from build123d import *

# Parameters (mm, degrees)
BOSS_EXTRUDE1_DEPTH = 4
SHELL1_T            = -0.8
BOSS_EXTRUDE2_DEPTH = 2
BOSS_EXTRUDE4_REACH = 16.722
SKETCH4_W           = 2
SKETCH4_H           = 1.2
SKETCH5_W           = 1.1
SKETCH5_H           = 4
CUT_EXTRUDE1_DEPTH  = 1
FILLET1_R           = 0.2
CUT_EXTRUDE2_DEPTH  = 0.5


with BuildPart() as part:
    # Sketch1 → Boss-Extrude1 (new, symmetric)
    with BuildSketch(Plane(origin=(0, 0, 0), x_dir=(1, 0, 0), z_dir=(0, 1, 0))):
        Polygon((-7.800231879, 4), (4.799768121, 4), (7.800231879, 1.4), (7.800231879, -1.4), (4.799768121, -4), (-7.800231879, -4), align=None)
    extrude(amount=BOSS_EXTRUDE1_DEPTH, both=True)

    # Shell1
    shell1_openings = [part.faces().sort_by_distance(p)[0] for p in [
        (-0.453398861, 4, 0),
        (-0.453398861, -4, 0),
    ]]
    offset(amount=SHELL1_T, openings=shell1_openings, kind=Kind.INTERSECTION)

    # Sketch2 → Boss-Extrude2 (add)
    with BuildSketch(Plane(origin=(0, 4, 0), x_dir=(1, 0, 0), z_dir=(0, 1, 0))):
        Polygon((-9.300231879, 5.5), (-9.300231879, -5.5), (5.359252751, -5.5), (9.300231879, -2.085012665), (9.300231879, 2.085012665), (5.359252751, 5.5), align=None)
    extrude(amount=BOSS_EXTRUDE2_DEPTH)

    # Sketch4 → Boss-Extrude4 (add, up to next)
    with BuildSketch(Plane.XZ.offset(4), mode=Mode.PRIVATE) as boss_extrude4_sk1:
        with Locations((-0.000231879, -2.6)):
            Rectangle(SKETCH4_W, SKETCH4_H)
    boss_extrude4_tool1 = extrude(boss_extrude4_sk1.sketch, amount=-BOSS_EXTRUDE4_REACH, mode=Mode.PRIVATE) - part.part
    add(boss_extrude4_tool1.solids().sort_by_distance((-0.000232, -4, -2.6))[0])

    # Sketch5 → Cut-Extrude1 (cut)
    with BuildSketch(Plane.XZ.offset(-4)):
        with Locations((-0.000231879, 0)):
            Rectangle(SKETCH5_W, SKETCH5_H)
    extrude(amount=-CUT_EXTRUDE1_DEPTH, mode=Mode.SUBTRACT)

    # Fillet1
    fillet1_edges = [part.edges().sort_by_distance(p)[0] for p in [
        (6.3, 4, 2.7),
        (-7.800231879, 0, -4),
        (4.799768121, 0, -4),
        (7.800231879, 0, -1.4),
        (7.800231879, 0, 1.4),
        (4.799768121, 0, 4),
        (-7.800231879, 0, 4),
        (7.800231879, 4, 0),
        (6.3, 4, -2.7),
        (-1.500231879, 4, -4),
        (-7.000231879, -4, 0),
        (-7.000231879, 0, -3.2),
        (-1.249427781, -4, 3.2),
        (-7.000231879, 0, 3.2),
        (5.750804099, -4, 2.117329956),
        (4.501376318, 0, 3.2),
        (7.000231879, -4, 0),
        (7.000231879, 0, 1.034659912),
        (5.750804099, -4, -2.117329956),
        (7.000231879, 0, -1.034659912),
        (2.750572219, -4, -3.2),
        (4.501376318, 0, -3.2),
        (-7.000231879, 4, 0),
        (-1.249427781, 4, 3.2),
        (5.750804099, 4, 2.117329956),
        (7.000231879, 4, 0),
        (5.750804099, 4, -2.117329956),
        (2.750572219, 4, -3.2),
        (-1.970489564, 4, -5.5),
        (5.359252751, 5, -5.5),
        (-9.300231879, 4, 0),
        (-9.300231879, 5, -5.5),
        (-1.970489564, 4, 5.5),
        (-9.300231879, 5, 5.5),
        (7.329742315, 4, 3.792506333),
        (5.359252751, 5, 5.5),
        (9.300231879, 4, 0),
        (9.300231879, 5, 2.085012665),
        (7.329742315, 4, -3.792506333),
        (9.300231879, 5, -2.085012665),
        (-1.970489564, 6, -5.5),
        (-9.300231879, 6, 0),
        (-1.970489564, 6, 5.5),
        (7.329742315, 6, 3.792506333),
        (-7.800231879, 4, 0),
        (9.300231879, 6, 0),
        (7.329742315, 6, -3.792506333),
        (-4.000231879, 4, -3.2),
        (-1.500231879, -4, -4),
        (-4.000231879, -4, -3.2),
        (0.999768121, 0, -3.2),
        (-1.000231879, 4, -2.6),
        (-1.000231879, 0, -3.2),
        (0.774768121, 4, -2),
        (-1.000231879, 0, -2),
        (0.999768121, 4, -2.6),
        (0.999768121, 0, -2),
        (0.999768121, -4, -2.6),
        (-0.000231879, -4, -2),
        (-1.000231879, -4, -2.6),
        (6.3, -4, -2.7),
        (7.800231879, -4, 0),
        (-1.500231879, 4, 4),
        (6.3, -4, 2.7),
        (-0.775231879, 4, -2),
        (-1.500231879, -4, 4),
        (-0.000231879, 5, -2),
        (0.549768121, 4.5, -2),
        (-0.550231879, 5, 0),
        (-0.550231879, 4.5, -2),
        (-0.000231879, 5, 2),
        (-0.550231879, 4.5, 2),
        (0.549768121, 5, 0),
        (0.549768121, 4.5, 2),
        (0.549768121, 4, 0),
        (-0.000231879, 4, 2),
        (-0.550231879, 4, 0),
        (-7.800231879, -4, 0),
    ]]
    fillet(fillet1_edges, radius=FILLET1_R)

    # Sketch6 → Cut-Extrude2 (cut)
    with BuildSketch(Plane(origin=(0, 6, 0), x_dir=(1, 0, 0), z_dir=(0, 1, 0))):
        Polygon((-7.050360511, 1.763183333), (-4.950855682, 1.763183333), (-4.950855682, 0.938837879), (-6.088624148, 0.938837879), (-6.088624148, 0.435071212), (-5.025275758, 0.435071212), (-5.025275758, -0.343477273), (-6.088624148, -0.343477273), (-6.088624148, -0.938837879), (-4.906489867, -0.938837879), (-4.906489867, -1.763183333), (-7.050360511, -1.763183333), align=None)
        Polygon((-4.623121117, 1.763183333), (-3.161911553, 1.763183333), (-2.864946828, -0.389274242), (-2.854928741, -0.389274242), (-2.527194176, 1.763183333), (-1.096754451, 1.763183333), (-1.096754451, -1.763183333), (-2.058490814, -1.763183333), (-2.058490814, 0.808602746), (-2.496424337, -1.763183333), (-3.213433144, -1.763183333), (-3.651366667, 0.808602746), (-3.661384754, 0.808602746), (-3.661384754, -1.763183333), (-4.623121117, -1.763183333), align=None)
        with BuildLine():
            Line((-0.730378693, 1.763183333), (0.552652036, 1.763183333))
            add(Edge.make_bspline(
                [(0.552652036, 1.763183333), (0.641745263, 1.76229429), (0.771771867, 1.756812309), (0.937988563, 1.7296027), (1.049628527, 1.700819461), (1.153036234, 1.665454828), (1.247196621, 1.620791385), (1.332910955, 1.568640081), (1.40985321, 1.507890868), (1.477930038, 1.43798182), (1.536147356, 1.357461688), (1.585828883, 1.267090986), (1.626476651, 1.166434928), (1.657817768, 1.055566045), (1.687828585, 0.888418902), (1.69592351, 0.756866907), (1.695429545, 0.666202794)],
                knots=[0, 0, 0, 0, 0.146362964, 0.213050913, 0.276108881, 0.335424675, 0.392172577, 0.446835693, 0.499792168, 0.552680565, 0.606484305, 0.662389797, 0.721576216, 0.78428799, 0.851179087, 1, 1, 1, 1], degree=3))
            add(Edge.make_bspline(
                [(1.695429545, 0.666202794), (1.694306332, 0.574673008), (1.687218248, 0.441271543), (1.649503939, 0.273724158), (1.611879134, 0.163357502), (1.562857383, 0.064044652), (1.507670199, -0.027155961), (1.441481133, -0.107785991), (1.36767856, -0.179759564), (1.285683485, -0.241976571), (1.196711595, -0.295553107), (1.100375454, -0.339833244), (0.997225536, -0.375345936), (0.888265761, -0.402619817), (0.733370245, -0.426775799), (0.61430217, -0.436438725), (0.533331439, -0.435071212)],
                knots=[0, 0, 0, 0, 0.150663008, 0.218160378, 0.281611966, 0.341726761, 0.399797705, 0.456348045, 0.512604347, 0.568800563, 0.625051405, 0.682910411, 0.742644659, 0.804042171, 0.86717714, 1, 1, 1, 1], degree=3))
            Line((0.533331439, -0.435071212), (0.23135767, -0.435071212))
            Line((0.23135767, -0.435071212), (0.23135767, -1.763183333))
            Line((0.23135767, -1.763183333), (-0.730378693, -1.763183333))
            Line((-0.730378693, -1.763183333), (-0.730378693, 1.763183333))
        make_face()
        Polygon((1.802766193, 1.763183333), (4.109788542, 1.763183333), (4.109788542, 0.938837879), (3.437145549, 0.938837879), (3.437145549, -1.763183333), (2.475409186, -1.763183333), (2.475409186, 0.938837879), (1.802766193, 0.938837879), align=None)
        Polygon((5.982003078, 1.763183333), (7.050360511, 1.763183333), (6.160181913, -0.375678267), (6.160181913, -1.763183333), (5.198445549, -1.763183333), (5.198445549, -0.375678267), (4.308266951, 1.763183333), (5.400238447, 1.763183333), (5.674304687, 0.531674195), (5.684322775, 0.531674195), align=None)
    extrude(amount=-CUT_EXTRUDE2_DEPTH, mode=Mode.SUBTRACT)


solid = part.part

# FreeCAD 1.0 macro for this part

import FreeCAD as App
import Part
import Sketcher
Q = App.Units.Quantity


def faces_at(feature, points):
    """Names of the faces that lie closest to the given points."""
    faces = feature.Shape.Faces
    near = lambda p: min(range(len(faces)), key=lambda i: faces[i].distToShape(Part.Vertex(*p))[0])
    return sorted({f"Face{near(p) + 1}" for p in points})

doc = App.newDocument("Part")
params = doc.addObject("Spreadsheet::Sheet", "Params")
for row, (alias, value) in enumerate([
    ("sketch1_height", "8 mm"),
    ("sketch1_width", "12.6 mm"),
    ("sketch1_height2", "2.8 mm"),
    ("pad1_length", "8 mm"),
    ("thickness_wall", "0.8 mm"),
    ("sketch2_height", "11 mm"),
    ("pad2_length", "2 mm"),
    ("sketch3_width", "2 mm"),
    ("sketch3_height", "1.2 mm"),
    ("sketch4_height", "4 mm"),
    ("sketch4_width", "1.1 mm"),
    ("pocket1_length", "1 mm"),
    ("fillet_radius", "0.2 mm"),
    ("pocket2_length", "0.5 mm"),
], start=1):
    params.set(f"A{row}", alias)
    params.set(f"B{row}", "=" + value)
    params.setAlias(f"B{row}", alias)

body = doc.addObject("PartDesign::Body", "Body")

# Sketch on XZ plane
sketch1 = doc.addObject("Sketcher::SketchObject", "Sketch")
body.addObject(sketch1)
sketch1.AttachmentSupport = (doc.XZ_Plane, [""])
sketch1.MapMode = "FlatFace"
sketch1.addGeometry(Part.LineSegment(App.Vector(4.8, -4, 0), App.Vector(-7.8, -4, 0)), False)
sketch1.addGeometry(Part.LineSegment(App.Vector(-7.8, -4, 0), App.Vector(-7.8, 4, 0)), False)
sketch1.addGeometry(Part.LineSegment(App.Vector(-7.8, 4, 0), App.Vector(4.8, 4, 0)), False)
sketch1.addGeometry(Part.LineSegment(App.Vector(4.8, 4, 0), App.Vector(7.8, 1.4, 0)), False)
sketch1.addGeometry(Part.LineSegment(App.Vector(7.8, 1.4, 0), App.Vector(7.8, -1.4, 0)), False)
sketch1.addGeometry(Part.LineSegment(App.Vector(7.8, -1.4, 0), App.Vector(4.8, -4, 0)), False)
sketch1.addConstraint(Sketcher.Constraint("Coincident", 0, 2, 1, 1))
sketch1.addConstraint(Sketcher.Constraint("Coincident", 1, 2, 2, 1))
sketch1.addConstraint(Sketcher.Constraint("Coincident", 2, 2, 3, 1))
sketch1.addConstraint(Sketcher.Constraint("Coincident", 3, 2, 4, 1))
sketch1.addConstraint(Sketcher.Constraint("Coincident", 4, 2, 5, 1))
sketch1.addConstraint(Sketcher.Constraint("Coincident", 5, 2, 0, 1))
sketch1.addConstraint(Sketcher.Constraint("Horizontal", 0))
sketch1.addConstraint(Sketcher.Constraint("Vertical", 1))
sketch1.addConstraint(Sketcher.Constraint("Horizontal", 2))
sketch1.addConstraint(Sketcher.Constraint("Vertical", 4))
sketch1.addConstraint(Sketcher.Constraint("Symmetric", 2, 2, 5, 2, -1))
sketch1.addConstraint(Sketcher.Constraint("Equal", 3, 5))
sketch1.addConstraint(Sketcher.Constraint("DistanceY", 1, 1, 1, 2, Q("8 mm")))
sketch1.addConstraint(Sketcher.Constraint("DistanceX", 0, 2, 0, 1, Q("12.6 mm")))
sketch1.addConstraint(Sketcher.Constraint("DistanceY", 4, 2, 4, 1, Q("2.8 mm")))
sketch1.addConstraint(Sketcher.Constraint("Angle", 3, Q("-40.91 deg")))
sketch1.addConstraint(Sketcher.Constraint("DistanceX", 0, 2, -1, 1, Q("7.800232 mm")))
sketch1.setExpression("Constraints[12]", "Params.sketch1_height")
sketch1.setExpression("Constraints[13]", "Params.sketch1_width")
sketch1.setExpression("Constraints[14]", "Params.sketch1_height2")
pad1 = doc.addObject("PartDesign::Pad", "Pad")
body.addObject(pad1)
pad1.Profile = sketch1
pad1.setExpression("Length", "Params.pad1_length")
pad1.Midplane = True
doc.recompute()

thickness = doc.addObject("PartDesign::Thickness", "Thickness")
body.addObject(thickness)
thickness.Base = (pad1, faces_at(pad1, [(0, 4, 0), (0, -4, 0)]))
thickness.setExpression("Value", "Params.thickness_wall")
thickness.Reversed = True
thickness.Join = "Intersection"

# Sketch on XZ plane
sketch2 = doc.addObject("Sketcher::SketchObject", "Sketch001")
body.addObject(sketch2)
sketch2.AttachmentSupport = (doc.XZ_Plane, [""])
sketch2.MapMode = "FlatFace"
sketch2.AttachmentOffset = App.Placement(App.Vector(0, 0, -4), App.Rotation())
sketch2.addGeometry(Part.LineSegment(App.Vector(-9.3, -5.5, 0), App.Vector(-9.3, 5.5, 0)), False)
sketch2.addGeometry(Part.LineSegment(App.Vector(-9.3, 5.5, 0), App.Vector(5.4, 5.5, 0)), False)
sketch2.addGeometry(Part.LineSegment(App.Vector(5.4, 5.5, 0), App.Vector(9.3, 2.1, 0)), False)
sketch2.addGeometry(Part.LineSegment(App.Vector(9.3, 2.1, 0), App.Vector(9.3, -2.1, 0)), False)
sketch2.addGeometry(Part.LineSegment(App.Vector(9.3, -2.1, 0), App.Vector(5.4, -5.5, 0)), False)
sketch2.addGeometry(Part.LineSegment(App.Vector(5.4, -5.5, 0), App.Vector(-9.3, -5.5, 0)), False)
sketch2.addConstraint(Sketcher.Constraint("Coincident", 0, 2, 1, 1))
sketch2.addConstraint(Sketcher.Constraint("Coincident", 1, 2, 2, 1))
sketch2.addConstraint(Sketcher.Constraint("Coincident", 2, 2, 3, 1))
sketch2.addConstraint(Sketcher.Constraint("Coincident", 3, 2, 4, 1))
sketch2.addConstraint(Sketcher.Constraint("Coincident", 4, 2, 5, 1))
sketch2.addConstraint(Sketcher.Constraint("Coincident", 5, 2, 0, 1))
sketch2.addConstraint(Sketcher.Constraint("Vertical", 0))
sketch2.addConstraint(Sketcher.Constraint("Horizontal", 1))
sketch2.addConstraint(Sketcher.Constraint("Vertical", 3))
sketch2.addConstraint(Sketcher.Constraint("Horizontal", 5))
sketch2.addConstraint(Sketcher.Constraint("Symmetric", 1, 2, 4, 2, -1))
sketch2.addConstraint(Sketcher.Constraint("Equal", 2, 4))
sketch2.addConstraint(Sketcher.Constraint("DistanceY", 0, 1, 0, 2, Q("11 mm")))
sketch2.addConstraint(Sketcher.Constraint("Angle", 2, Q("-40.91 deg")))
sketch2.addConstraint(Sketcher.Constraint("DistanceX", 1, 1, 1, 2, Q("14.659485 mm")))
sketch2.addConstraint(Sketcher.Constraint("DistanceY", 3, 2, 3, 1, Q("4.170025 mm")))
sketch2.addConstraint(Sketcher.Constraint("DistanceX", 0, 2, -1, 1, Q("9.300232 mm")))
sketch2.setExpression("Constraints[12]", "Params.sketch2_height")
pad2 = doc.addObject("PartDesign::Pad", "Pad001")
body.addObject(pad2)
pad2.Profile = sketch2
pad2.setExpression("Length", "Params.pad2_length")
pad2.Reversed = True

# Sketch on XZ plane
sketch3 = doc.addObject("Sketcher::SketchObject", "Sketch002")
body.addObject(sketch3)
sketch3.AttachmentSupport = (doc.XZ_Plane, [""])
sketch3.MapMode = "FlatFace"
sketch3.AttachmentOffset = App.Placement(App.Vector(0, 0, 4), App.Rotation())
sketch3.addGeometry(Part.LineSegment(App.Vector(-1, -2, 0), App.Vector(-1, -3.2, 0)), False)
sketch3.addGeometry(Part.LineSegment(App.Vector(-1, -3.2, 0), App.Vector(1, -3.2, 0)), False)
sketch3.addGeometry(Part.LineSegment(App.Vector(1, -3.2, 0), App.Vector(1, -2, 0)), False)
sketch3.addGeometry(Part.LineSegment(App.Vector(1, -2, 0), App.Vector(-1, -2, 0)), False)
sketch3.addConstraint(Sketcher.Constraint("Coincident", 0, 2, 1, 1))
sketch3.addConstraint(Sketcher.Constraint("Coincident", 1, 2, 2, 1))
sketch3.addConstraint(Sketcher.Constraint("Coincident", 2, 2, 3, 1))
sketch3.addConstraint(Sketcher.Constraint("Coincident", 3, 2, 0, 1))
sketch3.addConstraint(Sketcher.Constraint("Vertical", 0))
sketch3.addConstraint(Sketcher.Constraint("Horizontal", 1))
sketch3.addConstraint(Sketcher.Constraint("Vertical", 2))
sketch3.addConstraint(Sketcher.Constraint("Horizontal", 3))
sketch3.addConstraint(Sketcher.Constraint("DistanceX", 1, 1, 1, 2, Q("2 mm")))
sketch3.addConstraint(Sketcher.Constraint("DistanceY", 0, 2, 0, 1, Q("1.2 mm")))
sketch3.addConstraint(Sketcher.Constraint("DistanceY", 2, 2, -1, 1, Q("2 mm")))
sketch3.addConstraint(Sketcher.Constraint("DistanceX", 0, 2, -1, 1, Q("1.000232 mm")))
sketch3.setExpression("Constraints[8]", "Params.sketch3_width")
sketch3.setExpression("Constraints[9]", "Params.sketch3_height")
pad3 = doc.addObject("PartDesign::Pad", "Pad002")
body.addObject(pad3)
pad3.Profile = sketch3
pad3.Type = "UpToFirst"
pad3.Reversed = True

# Sketch on XZ plane
sketch4 = doc.addObject("Sketcher::SketchObject", "Sketch003")
body.addObject(sketch4)
sketch4.AttachmentSupport = (doc.XZ_Plane, [""])
sketch4.MapMode = "FlatFace"
sketch4.AttachmentOffset = App.Placement(App.Vector(0, 0, -4), App.Rotation())
sketch4.addGeometry(Part.LineSegment(App.Vector(-0.6, 2, 0), App.Vector(-0.6, -2, 0)), False)
sketch4.addGeometry(Part.LineSegment(App.Vector(-0.6, -2, 0), App.Vector(0.5, -2, 0)), False)
sketch4.addGeometry(Part.LineSegment(App.Vector(0.5, -2, 0), App.Vector(0.5, 2, 0)), False)
sketch4.addGeometry(Part.LineSegment(App.Vector(0.5, 2, 0), App.Vector(-0.6, 2, 0)), False)
sketch4.addConstraint(Sketcher.Constraint("Coincident", 0, 2, 1, 1))
sketch4.addConstraint(Sketcher.Constraint("Coincident", 1, 2, 2, 1))
sketch4.addConstraint(Sketcher.Constraint("Coincident", 2, 2, 3, 1))
sketch4.addConstraint(Sketcher.Constraint("Coincident", 3, 2, 0, 1))
sketch4.addConstraint(Sketcher.Constraint("Vertical", 0))
sketch4.addConstraint(Sketcher.Constraint("Horizontal", 1))
sketch4.addConstraint(Sketcher.Constraint("Vertical", 2))
sketch4.addConstraint(Sketcher.Constraint("Horizontal", 3))
sketch4.addConstraint(Sketcher.Constraint("DistanceY", 0, 2, 0, 1, Q("4 mm")))
sketch4.addConstraint(Sketcher.Constraint("DistanceX", 1, 1, 1, 2, Q("1.1 mm")))
sketch4.addConstraint(Sketcher.Constraint("DistanceY", 0, 2, -1, 1, Q("2 mm")))
sketch4.addConstraint(Sketcher.Constraint("DistanceX", 0, 2, -1, 1, Q("0.550232 mm")))
sketch4.setExpression("Constraints[8]", "Params.sketch4_height")
sketch4.setExpression("Constraints[9]", "Params.sketch4_width")
pocket1 = doc.addObject("PartDesign::Pocket", "Pocket")
body.addObject(pocket1)
pocket1.Profile = sketch4
pocket1.setExpression("Length", "Params.pocket1_length")
doc.recompute()

fillet = doc.addObject("PartDesign::Fillet", "Fillet")
body.addObject(fillet)
fillet.Base = (pocket1, ["Edge1"])
fillet.UseAllEdges = True
fillet.setExpression("Radius", "Params.fillet_radius")

# Sketch on XZ plane
sketch5 = doc.addObject("Sketcher::SketchObject", "Sketch004")
body.addObject(sketch5)
sketch5.AttachmentSupport = (doc.XZ_Plane, [""])
sketch5.MapMode = "FlatFace"
sketch5.AttachmentOffset = App.Placement(App.Vector(0, 0, -6), App.Rotation())
sketch5.addGeometry(Part.LineSegment(App.Vector(-4.950856, -1.763183, 0), App.Vector(-7.050361, -1.763183, 0)), False)
sketch5.addGeometry(Part.LineSegment(App.Vector(-7.050361, -1.763183, 0), App.Vector(-7.050361, 1.763183, 0)), False)
sketch5.addGeometry(Part.LineSegment(App.Vector(-7.050361, 1.763183, 0), App.Vector(-4.90649, 1.763183, 0)), False)
sketch5.addGeometry(Part.LineSegment(App.Vector(-4.90649, 1.763183, 0), App.Vector(-4.90649, 0.938838, 0)), False)
sketch5.addGeometry(Part.LineSegment(App.Vector(-4.90649, 0.938838, 0), App.Vector(-6.088624, 0.938838, 0)), False)
sketch5.addGeometry(Part.LineSegment(App.Vector(-6.088624, 0.938838, 0), App.Vector(-6.088624, 0.343477, 0)), False)
sketch5.addGeometry(Part.LineSegment(App.Vector(-6.088624, 0.343477, 0), App.Vector(-5.025276, 0.343477, 0)), False)
sketch5.addGeometry(Part.LineSegment(App.Vector(-5.025276, 0.343477, 0), App.Vector(-5.025276, -0.435071, 0)), False)
sketch5.addGeometry(Part.LineSegment(App.Vector(-5.025276, -0.435071, 0), App.Vector(-6.088624, -0.435071, 0)), False)
sketch5.addGeometry(Part.LineSegment(App.Vector(-6.088624, -0.435071, 0), App.Vector(-6.088624, -0.938838, 0)), False)
sketch5.addGeometry(Part.LineSegment(App.Vector(-6.088624, -0.938838, 0), App.Vector(-4.950856, -0.938838, 0)), False)
sketch5.addGeometry(Part.LineSegment(App.Vector(-4.950856, -0.938838, 0), App.Vector(-4.950856, -1.763183, 0)), False)
sketch5.addGeometry(Part.LineSegment(App.Vector(-3.161912, -1.763183, 0), App.Vector(-4.623121, -1.763183, 0)), False)
sketch5.addGeometry(Part.LineSegment(App.Vector(-4.623121, -1.763183, 0), App.Vector(-4.623121, 1.763183, 0)), False)
sketch5.addGeometry(Part.LineSegment(App.Vector(-4.623121, 1.763183, 0), App.Vector(-3.661385, 1.763183, 0)), False)
sketch5.addGeometry(Part.LineSegment(App.Vector(-3.661385, 1.763183, 0), App.Vector(-3.661385, -0.808603, 0)), False)
sketch5.addGeometry(Part.LineSegment(App.Vector(-3.661385, -0.808603, 0), App.Vector(-3.651367, -0.808603, 0)), False)
sketch5.addGeometry(Part.LineSegment(App.Vector(-3.651367, -0.808603, 0), App.Vector(-3.213433, 1.763183, 0)), False)
sketch5.addGeometry(Part.LineSegment(App.Vector(-3.213433, 1.763183, 0), App.Vector(-2.496424, 1.763183, 0)), False)
sketch5.addGeometry(Part.LineSegment(App.Vector(-2.496424, 1.763183, 0), App.Vector(-2.058491, -0.808603, 0)), False)
sketch5.addGeometry(Part.LineSegment(App.Vector(-2.058491, -0.808603, 0), App.Vector(-2.058491, 1.763183, 0)), False)
sketch5.addGeometry(Part.LineSegment(App.Vector(-2.058491, 1.763183, 0), App.Vector(-1.096754, 1.763183, 0)), False)
sketch5.addGeometry(Part.LineSegment(App.Vector(-1.096754, 1.763183, 0), App.Vector(-1.096754, -1.763183, 0)), False)
sketch5.addGeometry(Part.LineSegment(App.Vector(-1.096754, -1.763183, 0), App.Vector(-2.527194, -1.763183, 0)), False)
sketch5.addGeometry(Part.LineSegment(App.Vector(-2.527194, -1.763183, 0), App.Vector(-2.854929, 0.389274, 0)), False)
sketch5.addGeometry(Part.LineSegment(App.Vector(-2.854929, 0.389274, 0), App.Vector(-2.864947, 0.389274, 0)), False)
sketch5.addGeometry(Part.LineSegment(App.Vector(-2.864947, 0.389274, 0), App.Vector(-3.161912, -1.763183, 0)), False)
sketch5.addGeometry(Part.LineSegment(App.Vector(0.552652, -1.763183, 0), App.Vector(-0.730379, -1.763183, 0)), False)
sketch5.addGeometry(Part.LineSegment(App.Vector(-0.730379, -1.763183, 0), App.Vector(-0.730379, 1.763183, 0)), False)
sketch5.addGeometry(Part.LineSegment(App.Vector(-0.730379, 1.763183, 0), App.Vector(0.231358, 1.763183, 0)), False)
sketch5.addGeometry(Part.LineSegment(App.Vector(0.231358, 1.763183, 0), App.Vector(0.231358, 0.435071, 0)), False)
sketch5.addGeometry(Part.LineSegment(App.Vector(0.231358, 0.435071, 0), App.Vector(0.533331, 0.435071, 0)), False)
sketch5.addGeometry(Part.BSplineCurve([App.Vector(1.69543, -0.666203, 0), App.Vector(1.694306, -0.574673, 0), App.Vector(1.687218, -0.441272, 0), App.Vector(1.649504, -0.273724, 0), App.Vector(1.611879, -0.163358, 0), App.Vector(1.562857, -0.064045, 0), App.Vector(1.50767, 0.027156, 0), App.Vector(1.441481, 0.107786, 0), App.Vector(1.367679, 0.17976, 0), App.Vector(1.285683, 0.241977, 0), App.Vector(1.196712, 0.295553, 0), App.Vector(1.100375, 0.339833, 0), App.Vector(0.997226, 0.375346, 0), App.Vector(0.888266, 0.40262, 0), App.Vector(0.73337, 0.426776, 0), App.Vector(0.614302, 0.436439, 0), App.Vector(0.533331, 0.435071, 0)], [4, 1, 1, 1, 1, 1, 1, 1, 1, 1, 1, 1, 1, 1, 4], [0, 0.150663008, 0.218160378, 0.281611966, 0.341726761, 0.399797705, 0.456348045, 0.512604347, 0.568800563, 0.625051405, 0.682910411, 0.742644659, 0.804042171, 0.86717714, 1], False, 3, [1, 1, 1, 1, 1, 1, 1, 1, 1, 1, 1, 1, 1, 1, 1, 1, 1], False), False)
sketch5.addGeometry(Part.BSplineCurve([App.Vector(0.552652, -1.763183, 0), App.Vector(0.641745, -1.762294, 0), App.Vector(0.771772, -1.756812, 0), App.Vector(0.937989, -1.729603, 0), App.Vector(1.049629, -1.700819, 0), App.Vector(1.153036, -1.665455, 0), App.Vector(1.247197, -1.620791, 0), App.Vector(1.332911, -1.56864, 0), App.Vector(1.409853, -1.507891, 0), App.Vector(1.47793, -1.437982, 0), App.Vector(1.536147, -1.357462, 0), App.Vector(1.585829, -1.267091, 0), App.Vector(1.626477, -1.166435, 0), App.Vector(1.657818, -1.055566, 0), App.Vector(1.687829, -0.888419, 0), App.Vector(1.695924, -0.756867, 0), App.Vector(1.69543, -0.666203, 0)], [4, 1, 1, 1, 1, 1, 1, 1, 1, 1, 1, 1, 1, 1, 4], [0, 0.146362964, 0.213050913, 0.276108881, 0.335424675, 0.392172577, 0.446835693, 0.499792168, 0.552680565, 0.606484305, 0.662389797, 0.721576216, 0.78428799, 0.851179087, 1], False, 3, [1, 1, 1, 1, 1, 1, 1, 1, 1, 1, 1, 1, 1, 1, 1, 1, 1], False), False)
sketch5.addGeometry(Part.LineSegment(App.Vector(4.109789, -1.763183, 0), App.Vector(1.802766, -1.763183, 0)), False)
sketch5.addGeometry(Part.LineSegment(App.Vector(1.802766, -1.763183, 0), App.Vector(1.802766, -0.938838, 0)), False)
sketch5.addGeometry(Part.LineSegment(App.Vector(1.802766, -0.938838, 0), App.Vector(2.475409, -0.938838, 0)), False)
sketch5.addGeometry(Part.LineSegment(App.Vector(2.475409, -0.938838, 0), App.Vector(2.475409, 1.763183, 0)), False)
sketch5.addGeometry(Part.LineSegment(App.Vector(2.475409, 1.763183, 0), App.Vector(3.437146, 1.763183, 0)), False)
sketch5.addGeometry(Part.LineSegment(App.Vector(3.437146, 1.763183, 0), App.Vector(3.437146, -0.938838, 0)), False)
sketch5.addGeometry(Part.LineSegment(App.Vector(3.437146, -0.938838, 0), App.Vector(4.109789, -0.938838, 0)), False)
sketch5.addGeometry(Part.LineSegment(App.Vector(4.109789, -0.938838, 0), App.Vector(4.109789, -1.763183, 0)), False)
sketch5.addGeometry(Part.LineSegment(App.Vector(7.050361, -1.763183, 0), App.Vector(5.982003, -1.763183, 0)), False)
sketch5.addGeometry(Part.LineSegment(App.Vector(5.982003, -1.763183, 0), App.Vector(5.684323, -0.531674, 0)), False)
sketch5.addGeometry(Part.LineSegment(App.Vector(5.684323, -0.531674, 0), App.Vector(5.674305, -0.531674, 0)), False)
sketch5.addGeometry(Part.LineSegment(App.Vector(5.674305, -0.531674, 0), App.Vector(5.400238, -1.763183, 0)), False)
sketch5.addGeometry(Part.LineSegment(App.Vector(5.400238, -1.763183, 0), App.Vector(4.308267, -1.763183, 0)), False)
sketch5.addGeometry(Part.LineSegment(App.Vector(4.308267, -1.763183, 0), App.Vector(5.198446, 0.375678, 0)), False)
sketch5.addGeometry(Part.LineSegment(App.Vector(5.198446, 0.375678, 0), App.Vector(5.198446, 1.763183, 0)), False)
sketch5.addGeometry(Part.LineSegment(App.Vector(5.198446, 1.763183, 0), App.Vector(6.160182, 1.763183, 0)), False)
sketch5.addGeometry(Part.LineSegment(App.Vector(6.160182, 1.763183, 0), App.Vector(6.160182, 0.375678, 0)), False)
sketch5.addGeometry(Part.LineSegment(App.Vector(6.160182, 0.375678, 0), App.Vector(7.050361, -1.763183, 0)), False)
sketch5.addConstraint(Sketcher.Constraint("Block", 32))
sketch5.addConstraint(Sketcher.Constraint("Block", 33))
sketch5.addConstraint(Sketcher.Constraint("Coincident", 0, 2, 1, 1))
sketch5.addConstraint(Sketcher.Constraint("Coincident", 1, 2, 2, 1))
sketch5.addConstraint(Sketcher.Constraint("Coincident", 2, 2, 3, 1))
sketch5.addConstraint(Sketcher.Constraint("Coincident", 3, 2, 4, 1))
sketch5.addConstraint(Sketcher.Constraint("Coincident", 4, 2, 5, 1))
sketch5.addConstraint(Sketcher.Constraint("Coincident", 5, 2, 6, 1))
sketch5.addConstraint(Sketcher.Constraint("Coincident", 6, 2, 7, 1))
sketch5.addConstraint(Sketcher.Constraint("Coincident", 7, 2, 8, 1))
sketch5.addConstraint(Sketcher.Constraint("Coincident", 8, 2, 9, 1))
sketch5.addConstraint(Sketcher.Constraint("Coincident", 9, 2, 10, 1))
sketch5.addConstraint(Sketcher.Constraint("Coincident", 10, 2, 11, 1))
sketch5.addConstraint(Sketcher.Constraint("Coincident", 11, 2, 0, 1))
sketch5.addConstraint(Sketcher.Constraint("Coincident", 12, 2, 13, 1))
sketch5.addConstraint(Sketcher.Constraint("Coincident", 13, 2, 14, 1))
sketch5.addConstraint(Sketcher.Constraint("Coincident", 14, 2, 15, 1))
sketch5.addConstraint(Sketcher.Constraint("Coincident", 15, 2, 16, 1))
sketch5.addConstraint(Sketcher.Constraint("Coincident", 16, 2, 17, 1))
sketch5.addConstraint(Sketcher.Constraint("Coincident", 17, 2, 18, 1))
sketch5.addConstraint(Sketcher.Constraint("Coincident", 18, 2, 19, 1))
sketch5.addConstraint(Sketcher.Constraint("Coincident", 19, 2, 20, 1))
sketch5.addConstraint(Sketcher.Constraint("Coincident", 20, 2, 21, 1))
sketch5.addConstraint(Sketcher.Constraint("Coincident", 21, 2, 22, 1))
sketch5.addConstraint(Sketcher.Constraint("Coincident", 22, 2, 23, 1))
sketch5.addConstraint(Sketcher.Constraint("Coincident", 23, 2, 24, 1))
sketch5.addConstraint(Sketcher.Constraint("Coincident", 24, 2, 25, 1))
sketch5.addConstraint(Sketcher.Constraint("Coincident", 25, 2, 26, 1))
sketch5.addConstraint(Sketcher.Constraint("Coincident", 26, 2, 12, 1))
sketch5.addConstraint(Sketcher.Constraint("Coincident", 27, 2, 28, 1))
sketch5.addConstraint(Sketcher.Constraint("Coincident", 28, 2, 29, 1))
sketch5.addConstraint(Sketcher.Constraint("Coincident", 29, 2, 30, 1))
sketch5.addConstraint(Sketcher.Constraint("Coincident", 30, 2, 31, 1))
sketch5.addConstraint(Sketcher.Constraint("Coincident", 31, 2, 32, 2))
sketch5.addConstraint(Sketcher.Constraint("Coincident", 33, 1, 27, 1))
sketch5.addConstraint(Sketcher.Constraint("Coincident", 34, 2, 35, 1))
sketch5.addConstraint(Sketcher.Constraint("Coincident", 35, 2, 36, 1))
sketch5.addConstraint(Sketcher.Constraint("Coincident", 36, 2, 37, 1))
sketch5.addConstraint(Sketcher.Constraint("Coincident", 37, 2, 38, 1))
sketch5.addConstraint(Sketcher.Constraint("Coincident", 38, 2, 39, 1))
sketch5.addConstraint(Sketcher.Constraint("Coincident", 39, 2, 40, 1))
sketch5.addConstraint(Sketcher.Constraint("Coincident", 40, 2, 41, 1))
sketch5.addConstraint(Sketcher.Constraint("Coincident", 41, 2, 34, 1))
sketch5.addConstraint(Sketcher.Constraint("Coincident", 42, 2, 43, 1))
sketch5.addConstraint(Sketcher.Constraint("Coincident", 43, 2, 44, 1))
sketch5.addConstraint(Sketcher.Constraint("Coincident", 44, 2, 45, 1))
sketch5.addConstraint(Sketcher.Constraint("Coincident", 45, 2, 46, 1))
sketch5.addConstraint(Sketcher.Constraint("Coincident", 46, 2, 47, 1))
sketch5.addConstraint(Sketcher.Constraint("Coincident", 47, 2, 48, 1))
sketch5.addConstraint(Sketcher.Constraint("Coincident", 48, 2, 49, 1))
sketch5.addConstraint(Sketcher.Constraint("Coincident", 49, 2, 50, 1))
sketch5.addConstraint(Sketcher.Constraint("Coincident", 50, 2, 51, 1))
sketch5.addConstraint(Sketcher.Constraint("Coincident", 51, 2, 42, 1))
sketch5.addConstraint(Sketcher.Constraint("Horizontal", 0))
sketch5.addConstraint(Sketcher.Constraint("Vertical", 1))
sketch5.addConstraint(Sketcher.Constraint("Horizontal", 2))
sketch5.addConstraint(Sketcher.Constraint("Vertical", 3))
sketch5.addConstraint(Sketcher.Constraint("Horizontal", 4))
sketch5.addConstraint(Sketcher.Constraint("Vertical", 5))
sketch5.addConstraint(Sketcher.Constraint("Horizontal", 6))
sketch5.addConstraint(Sketcher.Constraint("Vertical", 7))
sketch5.addConstraint(Sketcher.Constraint("Horizontal", 8))
sketch5.addConstraint(Sketcher.Constraint("Vertical", 9))
sketch5.addConstraint(Sketcher.Constraint("Horizontal", 10))
sketch5.addConstraint(Sketcher.Constraint("Vertical", 11))
sketch5.addConstraint(Sketcher.Constraint("Horizontal", 12))
sketch5.addConstraint(Sketcher.Constraint("Vertical", 13))
sketch5.addConstraint(Sketcher.Constraint("Horizontal", 14))
sketch5.addConstraint(Sketcher.Constraint("Vertical", 15))
sketch5.addConstraint(Sketcher.Constraint("Horizontal", 16))
sketch5.addConstraint(Sketcher.Constraint("Horizontal", 18))
sketch5.addConstraint(Sketcher.Constraint("Vertical", 20))
sketch5.addConstraint(Sketcher.Constraint("Horizontal", 21))
sketch5.addConstraint(Sketcher.Constraint("Vertical", 22))
sketch5.addConstraint(Sketcher.Constraint("Horizontal", 23))
sketch5.addConstraint(Sketcher.Constraint("Horizontal", 25))
sketch5.addConstraint(Sketcher.Constraint("Horizontal", 27))
sketch5.addConstraint(Sketcher.Constraint("Vertical", 28))
sketch5.addConstraint(Sketcher.Constraint("Horizontal", 29))
sketch5.addConstraint(Sketcher.Constraint("Vertical", 30))
sketch5.addConstraint(Sketcher.Constraint("Horizontal", 31))
sketch5.addConstraint(Sketcher.Constraint("Horizontal", 34))
sketch5.addConstraint(Sketcher.Constraint("Vertical", 35))
sketch5.addConstraint(Sketcher.Constraint("Horizontal", 36))
sketch5.addConstraint(Sketcher.Constraint("Vertical", 37))
sketch5.addConstraint(Sketcher.Constraint("Horizontal", 38))
sketch5.addConstraint(Sketcher.Constraint("Vertical", 39))
sketch5.addConstraint(Sketcher.Constraint("Horizontal", 40))
sketch5.addConstraint(Sketcher.Constraint("Vertical", 41))
sketch5.addConstraint(Sketcher.Constraint("Horizontal", 42))
sketch5.addConstraint(Sketcher.Constraint("Horizontal", 44))
sketch5.addConstraint(Sketcher.Constraint("Horizontal", 46))
sketch5.addConstraint(Sketcher.Constraint("Vertical", 48))
sketch5.addConstraint(Sketcher.Constraint("Horizontal", 49))
sketch5.addConstraint(Sketcher.Constraint("Vertical", 50))
sketch5.addConstraint(Sketcher.Constraint("Symmetric", 1, 2, 51, 2, -1, 1))
sketch5.addConstraint(Sketcher.Constraint("Symmetric", 4, 2, 9, 2, -1))
sketch5.addConstraint(Sketcher.Constraint("Horizontal", 11, 2, 12, 2))
sketch5.addConstraint(Sketcher.Constraint("Horizontal", 2, 2, 13, 2))
sketch5.addConstraint(Sketcher.Constraint("Horizontal", 14, 2, 17, 2))
sketch5.addConstraint(Sketcher.Constraint("Horizontal", 16, 2, 19, 2))
sketch5.addConstraint(Sketcher.Constraint("Horizontal", 18, 2, 20, 2))
sketch5.addConstraint(Sketcher.Constraint("Horizontal", 12, 2, 22, 2))
sketch5.addConstraint(Sketcher.Constraint("Horizontal", 26, 2, 27, 2))
sketch5.addConstraint(Sketcher.Constraint("Horizontal", 21, 2, 28, 2))
sketch5.addConstraint(Sketcher.Constraint("Horizontal", 27, 2, 34, 2))
sketch5.addConstraint(Sketcher.Constraint("Horizontal", 10, 2, 35, 2))
sketch5.addConstraint(Sketcher.Constraint("Horizontal", 29, 2, 37, 2))
sketch5.addConstraint(Sketcher.Constraint("Horizontal", 36, 2, 39, 2))
sketch5.addConstraint(Sketcher.Constraint("Horizontal", 41, 2, 42, 2))
sketch5.addConstraint(Sketcher.Constraint("Horizontal", 42, 2, 45, 2))
sketch5.addConstraint(Sketcher.Constraint("Horizontal", 38, 2, 48, 2))
sketch5.addConstraint(Sketcher.Constraint("Horizontal", 47, 2, 50, 2))
sketch5.addConstraint(Sketcher.Constraint("Equal", 14, 21))
sketch5.addConstraint(Sketcher.Constraint("Equal", 16, 25))
sketch5.addConstraint(Sketcher.Constraint("Equal", 21, 29))
sketch5.addConstraint(Sketcher.Constraint("Equal", 29, 38))
sketch5.addConstraint(Sketcher.Constraint("Equal", 36, 40))
sketch5.addConstraint(Sketcher.Constraint("Equal", 25, 44))
sketch5.addConstraint(Sketcher.Constraint("Equal", 38, 49))
sketch5.addConstraint(Sketcher.Constraint("Equal", 17, 19))
sketch5.addConstraint(Sketcher.Constraint("Equal", 47, 51))
sketch5.addConstraint(Sketcher.Constraint("DistanceX", 2, 1, 2, 2, Q("2.143871 mm")))
sketch5.addConstraint(Sketcher.Constraint("DistanceX", 6, 1, 6, 2, Q("1.063348 mm")))
sketch5.addConstraint(Sketcher.Constraint("DistanceX", 10, 1, 10, 2, Q("1.137768 mm")))
sketch5.addConstraint(Sketcher.Constraint("DistanceX", 12, 2, 12, 1, Q("1.46121 mm")))
sketch5.addConstraint(Sketcher.Constraint("DistanceX", 16, 1, 16, 2, Q("0.010018 mm")))
sketch5.addConstraint(Sketcher.Constraint("DistanceX", 18, 1, 18, 2, Q("0.717009 mm")))
sketch5.addConstraint(Sketcher.Constraint("DistanceX", 23, 2, 23, 1, Q("1.43044 mm")))
sketch5.addConstraint(Sketcher.Constraint("DistanceX", 27, 2, 27, 1, Q("1.283031 mm")))
sketch5.addConstraint(Sketcher.Constraint("DistanceX", 46, 2, 46, 1, Q("1.091971 mm")))
sketch5.addConstraint(Sketcher.Constraint("DistanceY", 5, 2, 5, 1, Q("0.595361 mm")))
sketch5.addConstraint(Sketcher.Constraint("DistanceY", 7, 2, 7, 1, Q("0.778548 mm")))
sketch5.addConstraint(Sketcher.Constraint("DistanceY", 37, 1, 37, 2, Q("2.702021 mm")))
sketch5.addConstraint(Sketcher.Constraint("DistanceX", 44, 2, 42, 2, Q("0.307698 mm")))
sketch5.addConstraint(Sketcher.Constraint("DistanceX", 39, 2, 47, 2, Q("1.7613 mm")))
sketch5.addConstraint(Sketcher.Constraint("Distance", 47, Q("2.31671 mm")))
sketch5.addConstraint(Sketcher.Constraint("DistanceX", 0, 2, 0, 1, Q("2.099505 mm")))
sketch5.addConstraint(Sketcher.Constraint("DistanceX", 14, 1, 14, 2, Q("0.961736 mm")))
sketch5.addConstraint(Sketcher.Constraint("DistanceX", 34, 2, 34, 1, Q("2.307022 mm")))
sketch5.addConstraint(Sketcher.Constraint("DistanceX", 42, 2, 42, 1, Q("1.068357 mm")))
sketch5.addConstraint(Sketcher.Constraint("DistanceY", 15, 2, 15, 1, Q("2.571786 mm")))
sketch5.addConstraint(Sketcher.Constraint("DistanceY", 48, 1, 48, 2, Q("1.387505 mm")))
sketch5.addConstraint(Sketcher.Constraint("DistanceX", 0, 2, -1, 1, Q("7.050361 mm")))
sketch5.addConstraint(Sketcher.Constraint("DistanceX", 12, 2, -1, 1, Q("4.623121 mm")))
sketch5.addConstraint(Sketcher.Constraint("DistanceX", 19, 2, -1, 1, Q("2.058491 mm")))
sketch5.addConstraint(Sketcher.Constraint("DistanceX", 24, 2, -1, 1, Q("2.854929 mm")))
sketch5.addConstraint(Sketcher.Constraint("DistanceY", 24, 2, 17, 2, Q("1.373909 mm")))
sketch5.addConstraint(Sketcher.Constraint("DistanceY", 42, 2, 43, 2, Q("1.231509 mm")))
pocket2 = doc.addObject("PartDesign::Pocket", "Pocket001")
body.addObject(pocket2)
pocket2.Profile = sketch5
pocket2.setExpression("Length", "Params.pocket2_length")
pocket2.Reversed = True

doc.recompute()
